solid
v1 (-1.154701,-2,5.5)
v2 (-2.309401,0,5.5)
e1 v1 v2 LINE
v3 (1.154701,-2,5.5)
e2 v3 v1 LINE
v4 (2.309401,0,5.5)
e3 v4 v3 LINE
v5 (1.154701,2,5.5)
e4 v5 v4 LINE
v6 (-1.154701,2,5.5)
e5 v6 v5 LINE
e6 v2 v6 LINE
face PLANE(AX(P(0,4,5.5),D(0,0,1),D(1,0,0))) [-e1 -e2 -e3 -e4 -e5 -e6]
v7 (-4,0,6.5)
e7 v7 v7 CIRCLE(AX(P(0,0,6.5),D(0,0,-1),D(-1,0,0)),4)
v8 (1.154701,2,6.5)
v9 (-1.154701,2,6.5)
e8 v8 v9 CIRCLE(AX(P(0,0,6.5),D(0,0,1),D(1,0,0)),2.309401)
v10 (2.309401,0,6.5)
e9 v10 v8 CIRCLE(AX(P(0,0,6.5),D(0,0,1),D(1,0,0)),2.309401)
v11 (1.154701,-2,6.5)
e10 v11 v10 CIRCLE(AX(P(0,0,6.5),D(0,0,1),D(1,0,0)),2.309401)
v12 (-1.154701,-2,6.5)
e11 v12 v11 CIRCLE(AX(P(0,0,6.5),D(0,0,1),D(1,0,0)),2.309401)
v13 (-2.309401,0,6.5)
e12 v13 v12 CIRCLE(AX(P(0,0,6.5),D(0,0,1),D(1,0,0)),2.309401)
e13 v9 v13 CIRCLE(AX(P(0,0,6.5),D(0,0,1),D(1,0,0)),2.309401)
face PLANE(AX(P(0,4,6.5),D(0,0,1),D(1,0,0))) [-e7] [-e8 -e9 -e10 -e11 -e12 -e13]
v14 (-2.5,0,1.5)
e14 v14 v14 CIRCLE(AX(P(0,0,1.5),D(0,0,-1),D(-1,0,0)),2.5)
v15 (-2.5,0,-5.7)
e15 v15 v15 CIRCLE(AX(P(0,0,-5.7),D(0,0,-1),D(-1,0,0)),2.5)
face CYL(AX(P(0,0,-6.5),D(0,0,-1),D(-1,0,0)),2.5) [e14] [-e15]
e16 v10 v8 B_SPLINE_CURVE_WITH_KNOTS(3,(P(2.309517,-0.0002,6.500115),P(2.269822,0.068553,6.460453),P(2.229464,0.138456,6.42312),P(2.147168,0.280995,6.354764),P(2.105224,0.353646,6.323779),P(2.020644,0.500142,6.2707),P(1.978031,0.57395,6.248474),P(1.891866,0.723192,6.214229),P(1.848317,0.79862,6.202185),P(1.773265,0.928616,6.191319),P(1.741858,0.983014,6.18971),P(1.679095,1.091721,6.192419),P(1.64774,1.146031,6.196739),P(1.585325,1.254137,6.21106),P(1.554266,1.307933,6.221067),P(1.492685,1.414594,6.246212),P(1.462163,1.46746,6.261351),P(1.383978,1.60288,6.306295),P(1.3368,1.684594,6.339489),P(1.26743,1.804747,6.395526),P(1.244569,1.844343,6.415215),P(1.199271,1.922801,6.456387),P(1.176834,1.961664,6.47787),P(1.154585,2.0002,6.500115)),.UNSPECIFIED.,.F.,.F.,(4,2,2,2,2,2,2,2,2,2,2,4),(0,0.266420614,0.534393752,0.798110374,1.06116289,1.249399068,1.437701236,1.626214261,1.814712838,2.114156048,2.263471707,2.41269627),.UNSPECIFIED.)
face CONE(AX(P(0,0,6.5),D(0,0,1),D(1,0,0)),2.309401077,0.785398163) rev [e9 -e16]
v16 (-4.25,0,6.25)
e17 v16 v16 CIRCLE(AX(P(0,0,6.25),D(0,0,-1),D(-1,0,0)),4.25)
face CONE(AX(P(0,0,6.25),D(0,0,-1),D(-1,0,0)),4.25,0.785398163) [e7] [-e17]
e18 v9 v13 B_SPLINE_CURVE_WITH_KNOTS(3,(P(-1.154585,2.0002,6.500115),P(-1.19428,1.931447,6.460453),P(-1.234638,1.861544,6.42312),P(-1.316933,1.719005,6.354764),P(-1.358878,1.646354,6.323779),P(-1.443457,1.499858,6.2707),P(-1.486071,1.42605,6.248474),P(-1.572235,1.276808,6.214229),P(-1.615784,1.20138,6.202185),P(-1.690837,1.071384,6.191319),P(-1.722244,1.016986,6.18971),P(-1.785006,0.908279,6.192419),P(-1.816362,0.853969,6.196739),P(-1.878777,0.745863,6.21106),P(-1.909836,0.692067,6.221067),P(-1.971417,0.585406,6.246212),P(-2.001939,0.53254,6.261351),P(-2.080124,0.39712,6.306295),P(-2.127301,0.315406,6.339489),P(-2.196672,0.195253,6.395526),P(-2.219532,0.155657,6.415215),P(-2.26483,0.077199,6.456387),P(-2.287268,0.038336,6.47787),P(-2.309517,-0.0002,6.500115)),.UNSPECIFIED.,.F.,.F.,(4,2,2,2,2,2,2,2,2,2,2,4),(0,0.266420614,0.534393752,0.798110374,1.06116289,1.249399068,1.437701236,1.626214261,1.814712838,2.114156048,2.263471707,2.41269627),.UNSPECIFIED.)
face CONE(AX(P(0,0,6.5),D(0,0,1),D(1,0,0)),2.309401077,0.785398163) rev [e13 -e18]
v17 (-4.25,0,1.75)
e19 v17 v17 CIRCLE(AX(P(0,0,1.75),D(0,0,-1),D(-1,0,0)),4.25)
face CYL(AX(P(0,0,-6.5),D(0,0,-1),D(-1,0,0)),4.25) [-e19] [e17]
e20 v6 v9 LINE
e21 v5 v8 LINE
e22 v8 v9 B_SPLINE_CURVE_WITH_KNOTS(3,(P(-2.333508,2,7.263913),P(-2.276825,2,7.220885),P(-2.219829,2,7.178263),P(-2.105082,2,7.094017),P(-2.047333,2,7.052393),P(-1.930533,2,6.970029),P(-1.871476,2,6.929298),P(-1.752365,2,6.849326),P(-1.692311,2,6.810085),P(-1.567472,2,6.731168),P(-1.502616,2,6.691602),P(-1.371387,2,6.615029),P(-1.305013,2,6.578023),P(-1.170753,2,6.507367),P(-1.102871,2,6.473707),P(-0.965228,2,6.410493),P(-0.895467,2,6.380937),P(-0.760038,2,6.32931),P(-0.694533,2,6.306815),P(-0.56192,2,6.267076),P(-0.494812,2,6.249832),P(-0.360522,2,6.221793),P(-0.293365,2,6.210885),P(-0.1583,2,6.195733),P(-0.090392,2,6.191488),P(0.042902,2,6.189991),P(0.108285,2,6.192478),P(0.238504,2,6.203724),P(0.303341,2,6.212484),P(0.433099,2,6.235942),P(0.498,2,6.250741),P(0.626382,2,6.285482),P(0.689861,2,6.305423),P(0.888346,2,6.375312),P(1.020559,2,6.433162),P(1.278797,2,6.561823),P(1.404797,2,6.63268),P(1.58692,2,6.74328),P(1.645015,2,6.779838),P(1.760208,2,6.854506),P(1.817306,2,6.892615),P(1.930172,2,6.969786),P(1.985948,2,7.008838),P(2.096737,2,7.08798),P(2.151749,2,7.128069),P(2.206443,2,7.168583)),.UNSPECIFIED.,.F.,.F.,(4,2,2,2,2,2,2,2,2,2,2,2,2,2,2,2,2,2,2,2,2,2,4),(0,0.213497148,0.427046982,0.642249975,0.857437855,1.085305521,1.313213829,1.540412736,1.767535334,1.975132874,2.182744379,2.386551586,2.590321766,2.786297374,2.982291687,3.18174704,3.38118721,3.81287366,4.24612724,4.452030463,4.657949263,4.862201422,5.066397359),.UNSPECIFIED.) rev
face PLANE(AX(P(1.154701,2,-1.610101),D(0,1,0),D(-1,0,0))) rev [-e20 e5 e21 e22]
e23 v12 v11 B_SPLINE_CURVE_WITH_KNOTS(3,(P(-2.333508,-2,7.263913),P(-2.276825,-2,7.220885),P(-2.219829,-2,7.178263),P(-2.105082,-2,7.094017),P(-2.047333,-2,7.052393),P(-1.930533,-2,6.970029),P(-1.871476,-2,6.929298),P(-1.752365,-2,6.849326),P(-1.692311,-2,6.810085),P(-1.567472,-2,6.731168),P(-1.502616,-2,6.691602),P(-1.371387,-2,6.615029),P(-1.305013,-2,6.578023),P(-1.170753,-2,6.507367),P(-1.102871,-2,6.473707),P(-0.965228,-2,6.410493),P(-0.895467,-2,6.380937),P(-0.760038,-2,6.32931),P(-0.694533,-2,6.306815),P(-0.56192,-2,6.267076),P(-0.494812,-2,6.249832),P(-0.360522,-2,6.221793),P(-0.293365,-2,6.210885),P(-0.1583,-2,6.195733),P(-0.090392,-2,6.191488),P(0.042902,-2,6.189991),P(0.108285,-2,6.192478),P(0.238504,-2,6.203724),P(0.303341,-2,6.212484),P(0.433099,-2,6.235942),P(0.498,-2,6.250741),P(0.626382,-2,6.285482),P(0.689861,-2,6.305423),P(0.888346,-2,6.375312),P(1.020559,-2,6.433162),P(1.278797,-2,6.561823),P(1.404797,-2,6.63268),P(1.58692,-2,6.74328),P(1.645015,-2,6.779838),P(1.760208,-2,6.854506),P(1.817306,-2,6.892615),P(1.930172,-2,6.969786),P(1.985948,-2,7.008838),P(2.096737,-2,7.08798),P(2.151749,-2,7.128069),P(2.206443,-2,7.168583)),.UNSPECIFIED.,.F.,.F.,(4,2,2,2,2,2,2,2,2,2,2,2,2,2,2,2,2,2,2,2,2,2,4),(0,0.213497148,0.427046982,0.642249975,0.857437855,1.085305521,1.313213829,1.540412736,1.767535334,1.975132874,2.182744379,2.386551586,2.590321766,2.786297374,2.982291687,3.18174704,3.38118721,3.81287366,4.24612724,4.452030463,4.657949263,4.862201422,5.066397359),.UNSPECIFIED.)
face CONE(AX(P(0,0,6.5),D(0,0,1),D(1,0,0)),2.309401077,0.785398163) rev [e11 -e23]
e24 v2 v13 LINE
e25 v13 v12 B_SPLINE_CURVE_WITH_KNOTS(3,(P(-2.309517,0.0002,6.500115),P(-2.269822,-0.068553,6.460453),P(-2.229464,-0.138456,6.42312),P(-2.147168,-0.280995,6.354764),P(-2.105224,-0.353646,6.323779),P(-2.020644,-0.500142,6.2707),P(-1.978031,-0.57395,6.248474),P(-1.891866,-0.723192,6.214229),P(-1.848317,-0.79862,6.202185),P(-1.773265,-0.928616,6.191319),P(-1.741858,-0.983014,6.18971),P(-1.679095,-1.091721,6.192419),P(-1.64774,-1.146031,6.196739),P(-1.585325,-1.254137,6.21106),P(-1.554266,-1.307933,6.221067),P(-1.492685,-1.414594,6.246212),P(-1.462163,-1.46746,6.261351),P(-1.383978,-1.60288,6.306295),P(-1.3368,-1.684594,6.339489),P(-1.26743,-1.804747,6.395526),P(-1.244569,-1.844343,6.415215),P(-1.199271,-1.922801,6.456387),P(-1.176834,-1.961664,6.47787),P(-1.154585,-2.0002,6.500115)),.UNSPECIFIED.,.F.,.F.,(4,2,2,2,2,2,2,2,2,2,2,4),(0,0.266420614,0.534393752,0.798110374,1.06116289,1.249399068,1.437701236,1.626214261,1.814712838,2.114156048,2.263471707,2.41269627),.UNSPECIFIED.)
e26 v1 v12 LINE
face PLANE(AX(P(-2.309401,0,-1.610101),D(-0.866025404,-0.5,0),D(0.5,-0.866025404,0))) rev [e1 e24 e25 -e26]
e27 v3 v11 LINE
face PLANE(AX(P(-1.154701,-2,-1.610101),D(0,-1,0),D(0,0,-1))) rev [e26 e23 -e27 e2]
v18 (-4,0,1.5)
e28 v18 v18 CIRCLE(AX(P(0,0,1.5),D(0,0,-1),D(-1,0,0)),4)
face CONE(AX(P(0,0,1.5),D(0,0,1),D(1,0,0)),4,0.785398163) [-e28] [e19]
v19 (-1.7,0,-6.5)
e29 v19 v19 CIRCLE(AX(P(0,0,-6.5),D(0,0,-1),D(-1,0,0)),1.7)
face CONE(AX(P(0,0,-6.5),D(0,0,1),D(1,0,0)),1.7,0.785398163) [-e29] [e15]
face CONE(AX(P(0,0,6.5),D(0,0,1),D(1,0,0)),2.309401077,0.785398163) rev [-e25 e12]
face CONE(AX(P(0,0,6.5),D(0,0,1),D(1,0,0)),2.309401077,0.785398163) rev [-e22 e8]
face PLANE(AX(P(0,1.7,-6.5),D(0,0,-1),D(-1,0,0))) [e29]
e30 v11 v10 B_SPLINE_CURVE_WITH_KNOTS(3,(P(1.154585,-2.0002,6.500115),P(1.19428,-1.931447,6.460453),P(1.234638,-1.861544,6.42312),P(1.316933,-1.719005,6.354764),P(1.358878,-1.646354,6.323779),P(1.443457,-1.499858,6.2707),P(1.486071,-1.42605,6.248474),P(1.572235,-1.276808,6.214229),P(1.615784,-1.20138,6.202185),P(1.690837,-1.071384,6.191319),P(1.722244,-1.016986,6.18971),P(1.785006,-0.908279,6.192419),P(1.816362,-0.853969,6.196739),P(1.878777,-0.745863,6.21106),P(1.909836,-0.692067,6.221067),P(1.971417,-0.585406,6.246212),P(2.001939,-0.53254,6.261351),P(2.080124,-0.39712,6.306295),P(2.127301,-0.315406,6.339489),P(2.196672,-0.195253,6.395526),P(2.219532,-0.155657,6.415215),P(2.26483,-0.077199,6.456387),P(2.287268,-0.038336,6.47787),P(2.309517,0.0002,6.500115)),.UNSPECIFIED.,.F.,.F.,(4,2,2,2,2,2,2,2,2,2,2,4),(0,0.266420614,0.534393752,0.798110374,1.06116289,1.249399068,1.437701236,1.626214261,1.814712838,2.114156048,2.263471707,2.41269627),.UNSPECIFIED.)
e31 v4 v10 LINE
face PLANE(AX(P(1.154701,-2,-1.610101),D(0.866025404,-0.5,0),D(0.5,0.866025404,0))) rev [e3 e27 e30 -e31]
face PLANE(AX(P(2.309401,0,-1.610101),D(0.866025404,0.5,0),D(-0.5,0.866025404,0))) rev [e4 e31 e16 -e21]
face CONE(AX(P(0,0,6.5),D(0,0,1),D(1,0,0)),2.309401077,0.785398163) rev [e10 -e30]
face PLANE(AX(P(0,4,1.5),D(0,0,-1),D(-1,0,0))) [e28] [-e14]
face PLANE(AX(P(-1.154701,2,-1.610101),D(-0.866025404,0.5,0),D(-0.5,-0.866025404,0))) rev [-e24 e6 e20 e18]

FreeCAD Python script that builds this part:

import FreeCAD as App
import Part
import Sketcher

V = App.Vector
Q = App.Units.Quantity


def add_polygon(sketch, points):
    """Adds a closed chain of lines whose ends are joined by coincident constraints."""
    first, n = sketch.GeometryCount, len(points)
    for a, b in zip(points, points[1:] + points[:1]):
        sketch.addGeometry(Part.LineSegment(App.Vector(*a, 0), App.Vector(*b, 0)), False)
    for i in range(n):
        sketch.addConstraint(Sketcher.Constraint("Coincident", first + i, 2, first + (i + 1) % n, 1))

doc = App.newDocument("Part")
body = doc.addObject("PartDesign::Body", "Body")

# Sketch on YZ plane
sketch1 = body.newObject("Sketcher::SketchObject", "Sketch")
sketch1.AttachmentSupport = (doc.getObject("YZ_Plane"), [""])
sketch1.MapMode = "FlatFace"
add_polygon(sketch1, [(4.25, 1.75), (4.25, 6.25), (4, 6.5), (0, 6.5), (0, -6.5), (1.7, -6.5), (2.5, -5.7), (2.5, 1.5), (4, 1.5)])  # lines 0-8
sketch1.addConstraint([
    Sketcher.Constraint("Vertical", 0),
    Sketcher.Constraint("Horizontal", 2),
    Sketcher.Constraint("Vertical", 3),
    Sketcher.Constraint("Horizontal", 4),
    Sketcher.Constraint("Vertical", 6),
    Sketcher.Constraint("Horizontal", 7),
    Sketcher.Constraint("Symmetric", 2, 2, 3, 2, -1, 1),
    Sketcher.Constraint("Perpendicular", 1, 5),
    Sketcher.Constraint("Parallel", 5, 8),
    Sketcher.Constraint("Vertical", 1, 2, 7, 2),
    Sketcher.Constraint("Equal", 1, 8),
    Sketcher.Constraint("DistanceX", 2, 2, 2, 1, Q("4 mm")),
    Sketcher.Constraint("DistanceY", 3, 2, 3, 1, Q("13 mm")),
    Sketcher.Constraint("DistanceX", 4, 1, 4, 2, Q("1.7 mm")),
    Sketcher.Constraint("DistanceX", 7, 1, 7, 2, Q("1.5 mm")),
    Sketcher.Constraint("DistanceY", 0, 1, 0, 2, Q("4.5 mm")),
    Sketcher.Constraint("DistanceY", 6, 1, 6, 2, Q("7.2 mm")),
])
revolution = body.newObject("PartDesign::Revolution", "Revolution")
revolution.Profile = sketch1
revolution.ReferenceAxis = (sketch1, ["V_Axis"])
revolution.Angle = 360

# Sketch on XY plane
sketch2 = body.newObject("Sketcher::SketchObject", "Sketch001")
sketch2.AttachmentSupport = (doc.getObject("XY_Plane"), [""])
sketch2.MapMode = "FlatFace"
sketch2.AttachmentOffset = App.Placement(V(0, 0, 6.5), App.Rotation())
add_polygon(sketch2, [(1.2, 2), (-1.2, 2), (-2.3, 0), (-1.2, -2), (1.2, -2), (2.3, 0)])  # lines 0-5
sketch2.addConstraint([
    Sketcher.Constraint("Horizontal", 0),
    Sketcher.Constraint("Horizontal", 3),
    Sketcher.Constraint("Symmetric", 0, 2, 3, 2, -1, 1),
    Sketcher.Constraint("Symmetric", 1, 2, 4, 2, -1, 1),
    Sketcher.Constraint("PointOnObject", 1, 2, -1),
    Sketcher.Constraint("Parallel", 2, 5),
    Sketcher.Constraint("Vertical", 0, 2, 2, 2),
    Sketcher.Constraint("Angle", 1, Q("-120 deg")),
    Sketcher.Constraint("DistanceY", -1, 1, 0, 2, Q("2 mm")),
    Sketcher.Constraint("DistanceX", 0, 2, 0, 1, Q("2.309401 mm")),
])
pocket1 = body.newObject("PartDesign::Pocket", "Pocket")
pocket1.Profile = sketch2
pocket1.Length = 1

# Sketch on XY plane
sketch3 = body.newObject("Sketcher::SketchObject", "Sketch002")
sketch3.AttachmentSupport = (doc.getObject("XY_Plane"), [""])
sketch3.MapMode = "FlatFace"
sketch3.AttachmentOffset = App.Placement(V(0, 0, 6.5), App.Rotation())
sketch3.addGeometry(Part.Circle(V(0, 0, 0), V(0, 0, 1), 2.3), False)
sketch3.addConstraint([
    Sketcher.Constraint("Coincident", 0, 3, -1, 1),
    Sketcher.Constraint("Diameter", 0, Q("4.618802 mm")),
])
pocket2 = body.newObject("PartDesign::Pocket", "Pocket001")
pocket2.Profile = sketch3
pocket2.Length = 0.5
pocket2.TaperAngle = -45

doc.recompute()
